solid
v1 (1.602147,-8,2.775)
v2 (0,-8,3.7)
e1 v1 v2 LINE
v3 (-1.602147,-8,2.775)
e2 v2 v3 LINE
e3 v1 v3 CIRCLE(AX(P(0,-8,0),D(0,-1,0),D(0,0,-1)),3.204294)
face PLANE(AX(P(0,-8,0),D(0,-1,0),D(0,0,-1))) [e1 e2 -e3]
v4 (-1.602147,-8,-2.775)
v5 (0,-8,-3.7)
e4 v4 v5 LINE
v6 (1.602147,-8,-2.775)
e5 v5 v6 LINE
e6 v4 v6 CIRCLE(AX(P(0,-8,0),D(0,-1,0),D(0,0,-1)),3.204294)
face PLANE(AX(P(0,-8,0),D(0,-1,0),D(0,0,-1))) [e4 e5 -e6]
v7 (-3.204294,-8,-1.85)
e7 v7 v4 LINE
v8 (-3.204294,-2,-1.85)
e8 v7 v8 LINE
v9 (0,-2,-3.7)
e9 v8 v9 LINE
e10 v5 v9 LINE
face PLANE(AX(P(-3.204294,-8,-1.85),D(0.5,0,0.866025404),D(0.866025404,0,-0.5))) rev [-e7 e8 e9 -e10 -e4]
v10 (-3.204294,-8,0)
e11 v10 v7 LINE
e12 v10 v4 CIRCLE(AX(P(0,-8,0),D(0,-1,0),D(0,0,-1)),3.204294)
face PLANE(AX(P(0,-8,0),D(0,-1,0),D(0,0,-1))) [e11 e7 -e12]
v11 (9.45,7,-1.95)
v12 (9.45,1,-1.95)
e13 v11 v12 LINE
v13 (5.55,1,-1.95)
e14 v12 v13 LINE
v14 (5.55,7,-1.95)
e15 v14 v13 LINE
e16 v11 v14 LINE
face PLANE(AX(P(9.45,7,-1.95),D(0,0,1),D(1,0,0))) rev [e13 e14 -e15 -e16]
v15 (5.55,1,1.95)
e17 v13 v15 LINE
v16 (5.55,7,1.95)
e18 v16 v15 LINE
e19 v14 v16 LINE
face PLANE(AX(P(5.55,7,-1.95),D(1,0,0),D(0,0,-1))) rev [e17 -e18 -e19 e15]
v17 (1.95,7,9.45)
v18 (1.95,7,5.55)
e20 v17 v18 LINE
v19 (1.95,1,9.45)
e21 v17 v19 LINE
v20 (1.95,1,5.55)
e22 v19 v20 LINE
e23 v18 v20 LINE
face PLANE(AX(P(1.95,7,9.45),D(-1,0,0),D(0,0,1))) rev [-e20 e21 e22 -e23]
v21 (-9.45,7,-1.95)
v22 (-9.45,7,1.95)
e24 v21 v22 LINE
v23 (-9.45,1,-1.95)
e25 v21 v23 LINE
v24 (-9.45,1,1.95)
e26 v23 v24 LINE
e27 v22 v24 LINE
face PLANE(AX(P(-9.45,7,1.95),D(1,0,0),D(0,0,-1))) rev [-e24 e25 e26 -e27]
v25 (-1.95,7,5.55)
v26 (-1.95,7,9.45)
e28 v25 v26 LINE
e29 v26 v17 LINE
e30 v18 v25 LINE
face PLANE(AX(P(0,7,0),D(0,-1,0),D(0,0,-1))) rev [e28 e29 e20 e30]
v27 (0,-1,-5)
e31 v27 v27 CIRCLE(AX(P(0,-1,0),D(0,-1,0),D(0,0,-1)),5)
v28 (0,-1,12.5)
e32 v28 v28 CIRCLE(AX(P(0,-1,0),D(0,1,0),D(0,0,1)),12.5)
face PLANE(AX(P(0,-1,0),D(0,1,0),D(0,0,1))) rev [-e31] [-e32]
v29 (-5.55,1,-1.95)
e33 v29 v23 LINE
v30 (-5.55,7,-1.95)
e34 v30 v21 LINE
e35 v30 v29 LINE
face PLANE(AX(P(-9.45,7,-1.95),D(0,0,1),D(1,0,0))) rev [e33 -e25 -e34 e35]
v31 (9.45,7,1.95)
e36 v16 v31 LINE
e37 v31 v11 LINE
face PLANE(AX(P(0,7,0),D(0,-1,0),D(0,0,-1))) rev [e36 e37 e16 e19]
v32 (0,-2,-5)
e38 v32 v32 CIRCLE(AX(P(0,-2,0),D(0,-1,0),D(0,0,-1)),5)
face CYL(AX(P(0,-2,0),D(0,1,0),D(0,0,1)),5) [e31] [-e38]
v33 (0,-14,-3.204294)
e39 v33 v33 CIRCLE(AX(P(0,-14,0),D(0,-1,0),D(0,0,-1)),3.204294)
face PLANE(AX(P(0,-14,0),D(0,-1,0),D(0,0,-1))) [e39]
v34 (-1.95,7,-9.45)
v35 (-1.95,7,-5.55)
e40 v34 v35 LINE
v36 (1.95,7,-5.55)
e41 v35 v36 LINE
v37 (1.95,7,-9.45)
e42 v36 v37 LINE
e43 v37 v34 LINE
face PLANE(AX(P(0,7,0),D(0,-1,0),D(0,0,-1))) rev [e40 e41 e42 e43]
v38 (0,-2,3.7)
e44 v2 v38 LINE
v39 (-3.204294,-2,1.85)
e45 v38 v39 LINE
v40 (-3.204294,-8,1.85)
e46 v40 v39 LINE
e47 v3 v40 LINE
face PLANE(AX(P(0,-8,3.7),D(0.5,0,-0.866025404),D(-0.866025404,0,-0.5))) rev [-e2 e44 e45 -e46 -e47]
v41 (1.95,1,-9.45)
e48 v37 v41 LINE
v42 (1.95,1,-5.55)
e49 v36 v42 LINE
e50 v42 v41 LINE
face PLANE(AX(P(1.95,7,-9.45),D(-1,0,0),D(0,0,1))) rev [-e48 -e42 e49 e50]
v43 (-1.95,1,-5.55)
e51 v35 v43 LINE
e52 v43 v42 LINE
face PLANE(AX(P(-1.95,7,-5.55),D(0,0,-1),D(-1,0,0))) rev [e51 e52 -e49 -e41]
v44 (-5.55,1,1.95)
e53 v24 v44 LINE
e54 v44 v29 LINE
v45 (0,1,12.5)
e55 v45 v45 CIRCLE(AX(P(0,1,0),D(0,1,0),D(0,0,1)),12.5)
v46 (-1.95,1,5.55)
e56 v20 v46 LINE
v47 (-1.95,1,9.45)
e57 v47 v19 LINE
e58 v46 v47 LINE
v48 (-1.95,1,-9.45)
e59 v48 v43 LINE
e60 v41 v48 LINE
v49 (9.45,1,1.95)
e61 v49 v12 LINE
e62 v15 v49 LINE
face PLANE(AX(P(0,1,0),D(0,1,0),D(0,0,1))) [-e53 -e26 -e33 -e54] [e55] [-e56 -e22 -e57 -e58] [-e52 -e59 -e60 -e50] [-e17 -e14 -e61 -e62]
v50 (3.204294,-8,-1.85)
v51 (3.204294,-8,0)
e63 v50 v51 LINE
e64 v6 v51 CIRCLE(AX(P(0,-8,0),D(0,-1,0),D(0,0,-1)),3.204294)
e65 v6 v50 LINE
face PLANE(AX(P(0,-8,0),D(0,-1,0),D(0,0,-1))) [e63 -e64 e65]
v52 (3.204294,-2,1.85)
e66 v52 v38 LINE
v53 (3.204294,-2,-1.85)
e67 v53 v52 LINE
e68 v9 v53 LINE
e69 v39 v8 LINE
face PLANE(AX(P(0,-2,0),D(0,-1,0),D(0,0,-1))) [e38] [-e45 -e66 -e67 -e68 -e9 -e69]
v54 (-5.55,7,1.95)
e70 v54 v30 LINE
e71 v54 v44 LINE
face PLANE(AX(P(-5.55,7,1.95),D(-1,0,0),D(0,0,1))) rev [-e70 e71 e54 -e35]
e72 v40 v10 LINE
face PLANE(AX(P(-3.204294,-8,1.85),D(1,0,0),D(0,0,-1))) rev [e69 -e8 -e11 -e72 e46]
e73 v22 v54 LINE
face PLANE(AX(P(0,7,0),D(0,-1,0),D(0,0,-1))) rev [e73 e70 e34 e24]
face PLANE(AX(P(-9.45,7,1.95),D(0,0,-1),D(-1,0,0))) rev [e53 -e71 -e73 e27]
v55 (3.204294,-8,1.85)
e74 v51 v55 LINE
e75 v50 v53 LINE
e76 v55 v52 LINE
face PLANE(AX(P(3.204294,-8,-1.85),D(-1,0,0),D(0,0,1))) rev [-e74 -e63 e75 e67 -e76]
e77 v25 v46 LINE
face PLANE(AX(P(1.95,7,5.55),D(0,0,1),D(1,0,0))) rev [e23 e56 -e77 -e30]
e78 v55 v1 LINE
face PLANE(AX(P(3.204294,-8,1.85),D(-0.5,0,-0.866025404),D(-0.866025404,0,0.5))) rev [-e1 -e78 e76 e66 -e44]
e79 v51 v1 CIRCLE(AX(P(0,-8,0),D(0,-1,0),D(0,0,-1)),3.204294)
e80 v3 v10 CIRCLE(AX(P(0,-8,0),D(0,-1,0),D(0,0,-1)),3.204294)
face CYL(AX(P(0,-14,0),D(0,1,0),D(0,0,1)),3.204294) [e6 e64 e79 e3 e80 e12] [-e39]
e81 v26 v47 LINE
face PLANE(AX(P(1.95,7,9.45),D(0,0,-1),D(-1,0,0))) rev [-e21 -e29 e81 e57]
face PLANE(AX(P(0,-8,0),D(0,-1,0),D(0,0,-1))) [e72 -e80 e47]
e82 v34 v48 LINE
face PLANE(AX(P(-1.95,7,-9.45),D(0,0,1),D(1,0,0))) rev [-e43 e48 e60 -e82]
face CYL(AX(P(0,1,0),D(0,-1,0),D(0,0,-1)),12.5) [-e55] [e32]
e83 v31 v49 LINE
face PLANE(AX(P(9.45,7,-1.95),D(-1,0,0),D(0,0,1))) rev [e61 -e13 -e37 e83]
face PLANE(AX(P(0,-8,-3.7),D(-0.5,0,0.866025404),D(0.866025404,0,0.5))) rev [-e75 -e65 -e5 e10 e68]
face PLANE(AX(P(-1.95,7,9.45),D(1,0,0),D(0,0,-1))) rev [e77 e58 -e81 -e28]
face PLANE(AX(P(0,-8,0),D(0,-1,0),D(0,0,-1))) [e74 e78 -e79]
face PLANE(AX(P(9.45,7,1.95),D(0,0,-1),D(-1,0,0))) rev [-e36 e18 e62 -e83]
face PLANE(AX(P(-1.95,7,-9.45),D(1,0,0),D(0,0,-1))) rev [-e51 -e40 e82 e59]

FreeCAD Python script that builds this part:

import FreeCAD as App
import Part
import Sketcher
from FreeCAD import Vector
Q = App.Units.Quantity


def add_polygon(sketch, points):
    """Adds a closed chain of lines whose ends are joined by coincident constraints."""
    first, n = sketch.GeometryCount, len(points)
    for a, b in zip(points, points[1:] + points[:1]):
        sketch.addGeometry(Part.LineSegment(App.Vector(*a, 0), App.Vector(*b, 0)), False)
    for i in range(n):
        sketch.addConstraint(Sketcher.Constraint("Coincident", first + i, 2, first + (i + 1) % n, 1))

doc = App.newDocument("Part")
body = doc.addObject("PartDesign::Body", "Body")

# Sketch on XZ plane
sketch1 = body.newObject("Sketcher::SketchObject", "Sketch")
sketch1.AttachmentSupport = (doc.getObject("XZ_Plane"), [""])
sketch1.MapMode = "FlatFace"
sketch1.addGeometry(Part.Circle(Vector(0, 0, 0), Vector(0, 0, 1), 12.5), False)
sketch1.addConstraint(Sketcher.Constraint("Coincident", 0, 3, -1, 1))
sketch1.addConstraint(Sketcher.Constraint("Diameter", 0, Q("25 mm")))
pad1 = body.newObject("PartDesign::Pad", "Pad")
pad1.Profile = sketch1
pad1.Length = 2
pad1.Midplane = True

# Sketch on XZ plane
sketch2 = body.newObject("Sketcher::SketchObject", "Sketch001")
sketch2.AttachmentSupport = (doc.getObject("XZ_Plane"), [""])
sketch2.MapMode = "FlatFace"
sketch2.AttachmentOffset = App.Placement(Vector(0, 0, -1), App.Rotation())
add_polygon(sketch2, [(-1.95, -9.45), (-1.95, -5.55), (1.95, -5.55), (1.95, -9.45)])  # lines 0-3
add_polygon(sketch2, [(5.55, -1.95), (5.55, 1.95), (9.45, 1.95), (9.45, -1.95)])  # lines 4-7
add_polygon(sketch2, [(-1.95, 5.55), (-1.95, 9.45), (1.95, 9.45), (1.95, 5.55)])  # lines 8-11
add_polygon(sketch2, [(-9.45, -1.95), (-9.45, 1.95), (-5.55, 1.95), (-5.55, -1.95)])  # lines 12-15
sketch2.addConstraint(Sketcher.Constraint("Vertical", 0))
sketch2.addConstraint(Sketcher.Constraint("Horizontal", 1))
sketch2.addConstraint(Sketcher.Constraint("Vertical", 2))
sketch2.addConstraint(Sketcher.Constraint("Horizontal", 3))
sketch2.addConstraint(Sketcher.Constraint("Vertical", 4))
sketch2.addConstraint(Sketcher.Constraint("Horizontal", 5))
sketch2.addConstraint(Sketcher.Constraint("Vertical", 6))
sketch2.addConstraint(Sketcher.Constraint("Horizontal", 7))
sketch2.addConstraint(Sketcher.Constraint("Vertical", 8))
sketch2.addConstraint(Sketcher.Constraint("Horizontal", 9))
sketch2.addConstraint(Sketcher.Constraint("Vertical", 10))
sketch2.addConstraint(Sketcher.Constraint("Horizontal", 11))
sketch2.addConstraint(Sketcher.Constraint("Vertical", 12))
sketch2.addConstraint(Sketcher.Constraint("Horizontal", 13))
sketch2.addConstraint(Sketcher.Constraint("Vertical", 14))
sketch2.addConstraint(Sketcher.Constraint("Horizontal", 15))
sketch2.addConstraint(Sketcher.Constraint("Symmetric", 2, 2, 8, 2, -1, 1))
sketch2.addConstraint(Sketcher.Constraint("Symmetric", 0, 2, 10, 2, -1, 1))
sketch2.addConstraint(Sketcher.Constraint("Symmetric", 6, 2, 12, 2, -1, 1))
sketch2.addConstraint(Sketcher.Constraint("Symmetric", 4, 2, 14, 2, -1, 1))
sketch2.addConstraint(Sketcher.Constraint("Horizontal", 5, 2, 12, 2))
sketch2.addConstraint(Sketcher.Constraint("Vertical", 3, 2, 8, 2))
sketch2.addConstraint(Sketcher.Constraint("Equal", 3, 5))
sketch2.addConstraint(Sketcher.Constraint("Equal", 15, 0))
sketch2.addConstraint(Sketcher.Constraint("Equal", 2, 4))
sketch2.addConstraint(Sketcher.Constraint("DistanceX", 1, 1, 1, 2, Q("3.9 mm")))
sketch2.addConstraint(Sketcher.Constraint("DistanceY", 0, 2, 8, 2, Q("15 mm")))
sketch2.addConstraint(Sketcher.Constraint("DistanceX", 1, 2, 4, 2, Q("3.6 mm")))
pad2 = body.newObject("PartDesign::Pad", "Pad001")
pad2.Profile = sketch2
pad2.Length = 6
pad2.Reversed = True

# Sketch on XZ plane
sketch3 = body.newObject("Sketcher::SketchObject", "Sketch002")
sketch3.AttachmentSupport = (doc.getObject("XZ_Plane"), [""])
sketch3.MapMode = "FlatFace"
sketch3.AttachmentOffset = App.Placement(Vector(0, 0, 1), App.Rotation())
sketch3.addGeometry(Part.Circle(Vector(0, 0, 0), Vector(0, 0, 1), 5), False)
sketch3.addConstraint(Sketcher.Constraint("Coincident", 0, 3, -1, 1))
sketch3.addConstraint(Sketcher.Constraint("Diameter", 0, Q("10 mm")))
pad3 = body.newObject("PartDesign::Pad", "Pad002")
pad3.Profile = sketch3
pad3.Length = 1

# Sketch on XZ plane
sketch4 = body.newObject("Sketcher::SketchObject", "Sketch003")
sketch4.AttachmentSupport = (doc.getObject("XZ_Plane"), [""])
sketch4.MapMode = "FlatFace"
sketch4.AttachmentOffset = App.Placement(Vector(0, 0, 2), App.Rotation())
add_polygon(sketch4, [(0, -3.7), (3.204294, -1.85), (3.204294, 1.85), (0, 3.7), (-3.204294, 1.85), (-3.204294, -1.85)])  # lines 0-5
sketch4.addConstraint(Sketcher.Constraint("Vertical", 1))
sketch4.addConstraint(Sketcher.Constraint("Vertical", 4))
sketch4.addConstraint(Sketcher.Constraint("Symmetric", 0, 2, 3, 2, -1, 1))
sketch4.addConstraint(Sketcher.Constraint("Symmetric", 2, 2, 5, 2, -1, 1))
sketch4.addConstraint(Sketcher.Constraint("PointOnObject", 2, 2, -2))
sketch4.addConstraint(Sketcher.Constraint("Parallel", 2, 5))
sketch4.addConstraint(Sketcher.Constraint("Horizontal", 1, 2, 3, 2))
sketch4.addConstraint(Sketcher.Constraint("Angle", 0, Q("30 deg")))
sketch4.addConstraint(Sketcher.Constraint("DistanceY", 1, 1, 1, 2, Q("3.7 mm")))
sketch4.addConstraint(Sketcher.Constraint("Distance", 0, Q("3.7 mm")))
pad4 = body.newObject("PartDesign::Pad", "Pad003")
pad4.Profile = sketch4
pad4.Length = 6

# Sketch on XZ plane
sketch5 = body.newObject("Sketcher::SketchObject", "Sketch004")
sketch5.AttachmentSupport = (doc.getObject("XZ_Plane"), [""])
sketch5.MapMode = "FlatFace"
sketch5.AttachmentOffset = App.Placement(Vector(0, 0, 8), App.Rotation())
sketch5.addGeometry(Part.Circle(Vector(0, 0, 0), Vector(0, 0, 1), 3.204294), False)
sketch5.addConstraint(Sketcher.Constraint("Coincident", 0, 3, -1, 1))
sketch5.addConstraint(Sketcher.Constraint("Diameter", 0, Q("6.408588 mm")))
pad5 = body.newObject("PartDesign::Pad", "Pad004")
pad5.Profile = sketch5
pad5.Length = 6

doc.recompute()
